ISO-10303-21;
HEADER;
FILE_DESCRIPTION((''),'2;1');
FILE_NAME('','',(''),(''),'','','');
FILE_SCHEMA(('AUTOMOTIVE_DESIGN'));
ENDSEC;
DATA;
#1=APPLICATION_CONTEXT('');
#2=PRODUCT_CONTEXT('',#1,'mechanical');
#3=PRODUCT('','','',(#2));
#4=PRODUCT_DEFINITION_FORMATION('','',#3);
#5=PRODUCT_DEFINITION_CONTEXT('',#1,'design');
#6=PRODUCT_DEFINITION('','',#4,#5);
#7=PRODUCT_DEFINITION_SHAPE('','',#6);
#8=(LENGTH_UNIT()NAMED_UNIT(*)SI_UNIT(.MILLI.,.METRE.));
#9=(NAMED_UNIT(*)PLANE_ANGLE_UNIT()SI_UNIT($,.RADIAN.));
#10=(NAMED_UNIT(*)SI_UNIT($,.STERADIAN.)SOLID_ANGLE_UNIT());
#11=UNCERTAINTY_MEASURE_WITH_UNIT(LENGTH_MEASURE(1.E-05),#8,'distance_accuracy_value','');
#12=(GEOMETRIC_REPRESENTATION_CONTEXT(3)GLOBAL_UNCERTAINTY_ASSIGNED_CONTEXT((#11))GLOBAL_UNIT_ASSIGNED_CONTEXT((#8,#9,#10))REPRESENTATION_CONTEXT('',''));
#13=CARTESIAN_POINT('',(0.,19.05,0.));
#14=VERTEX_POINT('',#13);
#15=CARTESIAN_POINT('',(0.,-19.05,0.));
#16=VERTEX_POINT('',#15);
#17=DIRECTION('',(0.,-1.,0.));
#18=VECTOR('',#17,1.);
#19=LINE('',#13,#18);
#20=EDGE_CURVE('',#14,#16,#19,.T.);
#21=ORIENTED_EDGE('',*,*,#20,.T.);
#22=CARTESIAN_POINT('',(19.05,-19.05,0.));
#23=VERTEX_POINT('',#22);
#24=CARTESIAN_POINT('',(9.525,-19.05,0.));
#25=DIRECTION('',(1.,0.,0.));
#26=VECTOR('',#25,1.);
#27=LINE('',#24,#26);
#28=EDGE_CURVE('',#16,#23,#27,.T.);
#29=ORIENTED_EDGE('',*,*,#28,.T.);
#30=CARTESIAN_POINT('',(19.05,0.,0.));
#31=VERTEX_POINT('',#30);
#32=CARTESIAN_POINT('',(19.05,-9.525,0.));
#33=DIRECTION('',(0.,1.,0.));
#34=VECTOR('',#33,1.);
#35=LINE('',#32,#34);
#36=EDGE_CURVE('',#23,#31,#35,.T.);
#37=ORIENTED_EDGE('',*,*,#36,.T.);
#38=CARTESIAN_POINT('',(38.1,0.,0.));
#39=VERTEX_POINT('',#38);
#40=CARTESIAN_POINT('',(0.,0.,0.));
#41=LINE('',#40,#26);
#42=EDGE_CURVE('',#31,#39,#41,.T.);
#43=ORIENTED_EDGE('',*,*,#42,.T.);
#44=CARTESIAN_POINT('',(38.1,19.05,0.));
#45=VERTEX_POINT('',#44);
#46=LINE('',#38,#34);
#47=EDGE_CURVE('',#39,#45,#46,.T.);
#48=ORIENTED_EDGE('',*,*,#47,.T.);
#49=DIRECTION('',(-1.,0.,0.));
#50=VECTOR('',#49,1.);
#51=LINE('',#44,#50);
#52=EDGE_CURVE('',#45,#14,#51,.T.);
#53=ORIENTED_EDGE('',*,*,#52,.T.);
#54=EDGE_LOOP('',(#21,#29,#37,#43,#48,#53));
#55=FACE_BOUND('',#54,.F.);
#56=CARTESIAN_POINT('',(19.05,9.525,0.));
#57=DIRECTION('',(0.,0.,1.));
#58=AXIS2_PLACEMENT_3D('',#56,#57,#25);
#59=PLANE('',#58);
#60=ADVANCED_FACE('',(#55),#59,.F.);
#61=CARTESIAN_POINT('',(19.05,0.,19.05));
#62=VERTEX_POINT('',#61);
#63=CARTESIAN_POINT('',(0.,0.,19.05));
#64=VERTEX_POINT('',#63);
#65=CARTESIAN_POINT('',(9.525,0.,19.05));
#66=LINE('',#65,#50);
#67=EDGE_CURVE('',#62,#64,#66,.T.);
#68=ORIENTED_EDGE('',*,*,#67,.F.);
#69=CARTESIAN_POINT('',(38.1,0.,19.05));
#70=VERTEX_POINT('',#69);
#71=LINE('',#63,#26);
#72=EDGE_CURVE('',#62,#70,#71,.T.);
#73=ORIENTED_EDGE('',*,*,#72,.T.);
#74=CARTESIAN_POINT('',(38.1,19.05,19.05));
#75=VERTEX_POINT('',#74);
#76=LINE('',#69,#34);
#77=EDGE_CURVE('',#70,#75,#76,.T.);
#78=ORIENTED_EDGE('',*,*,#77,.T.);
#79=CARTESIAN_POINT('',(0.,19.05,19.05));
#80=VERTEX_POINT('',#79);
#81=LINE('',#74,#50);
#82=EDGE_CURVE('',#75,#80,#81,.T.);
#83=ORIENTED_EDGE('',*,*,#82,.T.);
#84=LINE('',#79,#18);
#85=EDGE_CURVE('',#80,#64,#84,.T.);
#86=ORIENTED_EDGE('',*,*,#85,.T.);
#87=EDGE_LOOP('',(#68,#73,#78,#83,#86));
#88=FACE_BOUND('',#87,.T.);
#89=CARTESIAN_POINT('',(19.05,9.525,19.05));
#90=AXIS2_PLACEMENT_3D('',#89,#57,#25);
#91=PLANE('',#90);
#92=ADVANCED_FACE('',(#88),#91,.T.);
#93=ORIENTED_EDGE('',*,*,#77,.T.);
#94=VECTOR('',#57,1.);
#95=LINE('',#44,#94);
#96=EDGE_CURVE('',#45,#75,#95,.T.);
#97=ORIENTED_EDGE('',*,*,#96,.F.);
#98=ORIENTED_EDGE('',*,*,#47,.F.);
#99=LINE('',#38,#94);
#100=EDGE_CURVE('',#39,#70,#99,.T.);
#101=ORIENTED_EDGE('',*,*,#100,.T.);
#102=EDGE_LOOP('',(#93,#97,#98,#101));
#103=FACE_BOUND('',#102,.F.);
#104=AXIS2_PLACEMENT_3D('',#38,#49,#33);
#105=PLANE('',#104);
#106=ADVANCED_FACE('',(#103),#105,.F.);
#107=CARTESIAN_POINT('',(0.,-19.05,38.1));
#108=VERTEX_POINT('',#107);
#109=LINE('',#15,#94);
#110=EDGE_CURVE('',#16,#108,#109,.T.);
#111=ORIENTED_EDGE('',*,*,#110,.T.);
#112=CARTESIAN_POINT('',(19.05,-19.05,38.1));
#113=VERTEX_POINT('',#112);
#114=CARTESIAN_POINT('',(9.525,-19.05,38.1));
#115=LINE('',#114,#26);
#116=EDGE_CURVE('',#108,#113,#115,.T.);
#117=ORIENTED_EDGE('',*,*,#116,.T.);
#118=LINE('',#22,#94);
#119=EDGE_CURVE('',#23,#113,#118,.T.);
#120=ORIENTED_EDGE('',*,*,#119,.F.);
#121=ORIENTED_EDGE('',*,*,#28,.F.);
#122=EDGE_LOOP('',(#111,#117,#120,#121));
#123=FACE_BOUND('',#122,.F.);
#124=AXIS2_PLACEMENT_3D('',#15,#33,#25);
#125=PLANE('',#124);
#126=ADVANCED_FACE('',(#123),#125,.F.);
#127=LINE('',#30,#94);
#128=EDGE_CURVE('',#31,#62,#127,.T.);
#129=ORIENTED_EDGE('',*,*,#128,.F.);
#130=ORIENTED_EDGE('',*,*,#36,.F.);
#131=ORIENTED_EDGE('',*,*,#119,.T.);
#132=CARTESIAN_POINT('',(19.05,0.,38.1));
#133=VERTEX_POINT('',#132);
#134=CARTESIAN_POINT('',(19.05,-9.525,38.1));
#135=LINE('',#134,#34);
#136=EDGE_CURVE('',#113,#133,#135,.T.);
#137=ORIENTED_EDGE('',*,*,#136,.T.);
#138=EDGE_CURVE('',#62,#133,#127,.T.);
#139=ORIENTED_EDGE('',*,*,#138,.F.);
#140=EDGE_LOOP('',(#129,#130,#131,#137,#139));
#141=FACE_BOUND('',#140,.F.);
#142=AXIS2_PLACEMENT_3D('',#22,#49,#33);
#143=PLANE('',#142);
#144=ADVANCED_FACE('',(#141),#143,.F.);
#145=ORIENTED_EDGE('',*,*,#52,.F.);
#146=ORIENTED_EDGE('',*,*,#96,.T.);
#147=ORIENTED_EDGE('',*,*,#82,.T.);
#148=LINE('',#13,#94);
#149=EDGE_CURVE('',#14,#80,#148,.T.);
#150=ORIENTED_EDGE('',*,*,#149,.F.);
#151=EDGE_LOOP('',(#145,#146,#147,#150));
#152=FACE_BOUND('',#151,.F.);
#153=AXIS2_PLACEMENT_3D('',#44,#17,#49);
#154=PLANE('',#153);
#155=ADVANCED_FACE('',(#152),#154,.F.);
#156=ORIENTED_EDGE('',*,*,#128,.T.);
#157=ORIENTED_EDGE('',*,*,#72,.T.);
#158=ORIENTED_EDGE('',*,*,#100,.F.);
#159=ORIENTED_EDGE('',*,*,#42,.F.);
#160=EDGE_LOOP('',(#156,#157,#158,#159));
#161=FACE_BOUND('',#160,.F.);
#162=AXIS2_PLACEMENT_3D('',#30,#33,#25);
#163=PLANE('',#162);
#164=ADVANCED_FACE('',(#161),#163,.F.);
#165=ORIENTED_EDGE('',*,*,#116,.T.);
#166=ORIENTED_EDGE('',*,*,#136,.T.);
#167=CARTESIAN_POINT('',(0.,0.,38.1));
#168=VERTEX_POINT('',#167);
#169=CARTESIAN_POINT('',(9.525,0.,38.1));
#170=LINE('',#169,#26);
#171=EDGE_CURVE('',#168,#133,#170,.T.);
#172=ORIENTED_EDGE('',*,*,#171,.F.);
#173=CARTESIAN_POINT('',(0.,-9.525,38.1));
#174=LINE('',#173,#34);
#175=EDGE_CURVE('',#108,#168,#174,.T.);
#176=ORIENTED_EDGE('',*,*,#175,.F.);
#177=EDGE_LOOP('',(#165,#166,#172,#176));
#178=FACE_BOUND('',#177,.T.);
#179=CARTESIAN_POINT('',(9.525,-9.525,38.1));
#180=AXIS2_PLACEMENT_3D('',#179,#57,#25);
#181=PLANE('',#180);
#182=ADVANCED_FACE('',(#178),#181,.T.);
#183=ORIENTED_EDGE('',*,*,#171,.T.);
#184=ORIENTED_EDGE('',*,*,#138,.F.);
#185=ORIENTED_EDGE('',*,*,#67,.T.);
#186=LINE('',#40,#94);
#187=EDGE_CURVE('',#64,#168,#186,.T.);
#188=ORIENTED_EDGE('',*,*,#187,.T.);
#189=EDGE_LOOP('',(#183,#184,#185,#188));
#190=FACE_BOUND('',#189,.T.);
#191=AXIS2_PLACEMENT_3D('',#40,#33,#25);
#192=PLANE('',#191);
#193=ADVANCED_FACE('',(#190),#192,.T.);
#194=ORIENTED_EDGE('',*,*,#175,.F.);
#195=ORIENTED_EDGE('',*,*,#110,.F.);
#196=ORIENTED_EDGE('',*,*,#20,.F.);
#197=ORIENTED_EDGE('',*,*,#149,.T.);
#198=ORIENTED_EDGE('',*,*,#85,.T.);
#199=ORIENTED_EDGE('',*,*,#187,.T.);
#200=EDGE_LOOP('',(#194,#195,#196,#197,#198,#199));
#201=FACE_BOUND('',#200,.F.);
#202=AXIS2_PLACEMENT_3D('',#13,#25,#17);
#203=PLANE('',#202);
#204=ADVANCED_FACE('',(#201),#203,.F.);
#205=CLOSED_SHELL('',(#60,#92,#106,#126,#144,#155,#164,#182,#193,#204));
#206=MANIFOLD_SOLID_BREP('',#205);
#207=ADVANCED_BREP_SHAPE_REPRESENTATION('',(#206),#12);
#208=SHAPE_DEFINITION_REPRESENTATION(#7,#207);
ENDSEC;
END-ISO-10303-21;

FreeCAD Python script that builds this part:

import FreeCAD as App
import Part
import Sketcher

V = App.Vector
Q = App.Units.Quantity

doc = App.newDocument("Part")
body = doc.addObject("PartDesign::Body", "Body")

# Sketch on XY plane
sketch1 = doc.addObject("Sketcher::SketchObject", "Sketch")
body.addObject(sketch1)
sketch1.AttachmentSupport = (doc.XY_Plane, [""])
sketch1.MapMode = "FlatFace"
sketch1.addGeometry(Part.LineSegment(V(0, 19, 0), V(0, -19, 0)), False)
sketch1.addGeometry(Part.LineSegment(V(0, -19, 0), V(19, -19, 0)), False)
sketch1.addGeometry(Part.LineSegment(V(19, -19, 0), V(19, 0, 0)), False)
sketch1.addGeometry(Part.LineSegment(V(19, 0, 0), V(38, 0, 0)), False)
sketch1.addGeometry(Part.LineSegment(V(38, 0, 0), V(38, 19, 0)), False)
sketch1.addGeometry(Part.LineSegment(V(38, 19, 0), V(0, 19, 0)), False)
sketch1.addConstraint(Sketcher.Constraint("Coincident", 0, 2, 1, 1))
sketch1.addConstraint(Sketcher.Constraint("Coincident", 1, 2, 2, 1))
sketch1.addConstraint(Sketcher.Constraint("Coincident", 2, 2, 3, 1))
sketch1.addConstraint(Sketcher.Constraint("Coincident", 3, 2, 4, 1))
sketch1.addConstraint(Sketcher.Constraint("Coincident", 4, 2, 5, 1))
sketch1.addConstraint(Sketcher.Constraint("Coincident", 5, 2, 0, 1))
sketch1.addConstraint(Sketcher.Constraint("Vertical", 0))
sketch1.addConstraint(Sketcher.Constraint("Horizontal", 1))
sketch1.addConstraint(Sketcher.Constraint("Vertical", 2))
sketch1.addConstraint(Sketcher.Constraint("Horizontal", 3))
sketch1.addConstraint(Sketcher.Constraint("Vertical", 4))
sketch1.addConstraint(Sketcher.Constraint("Horizontal", 5))
sketch1.addConstraint(Sketcher.Constraint("Symmetric", 0, 2, 5, 2, -1, 1))
sketch1.addConstraint(Sketcher.Constraint("PointOnObject", 2, 2, -1))
sketch1.addConstraint(Sketcher.Constraint("Equal", 1, 3))
sketch1.addConstraint(Sketcher.Constraint("Equal", 5, 0))
sketch1.addConstraint(Sketcher.Constraint("DistanceX", 5, 2, 5, 1, Q("1.5 in")))
pad1 = doc.addObject("PartDesign::Pad", "Pad")
body.addObject(pad1)
pad1.Profile = sketch1
pad1.Length = Q("0.75 in")

# Sketch on XY plane
sketch2 = doc.addObject("Sketcher::SketchObject", "Sketch001")
body.addObject(sketch2)
sketch2.AttachmentSupport = (doc.XY_Plane, [""])
sketch2.MapMode = "FlatFace"
sketch2.addGeometry(Part.LineSegment(V(0, 0, 0), V(0, -19, 0)), False)
sketch2.addGeometry(Part.LineSegment(V(0, -19, 0), V(19, -19, 0)), False)
sketch2.addGeometry(Part.LineSegment(V(19, -19, 0), V(19, 0, 0)), False)
sketch2.addGeometry(Part.LineSegment(V(19, 0, 0), V(0, 0, 0)), False)
sketch2.addConstraint(Sketcher.Constraint("Coincident", 0, 2, 1, 1))
sketch2.addConstraint(Sketcher.Constraint("Coincident", 1, 2, 2, 1))
sketch2.addConstraint(Sketcher.Constraint("Coincident", 2, 2, 3, 1))
sketch2.addConstraint(Sketcher.Constraint("Coincident", 3, 2, 0, 1))
sketch2.addConstraint(Sketcher.Constraint("Vertical", 0))
sketch2.addConstraint(Sketcher.Constraint("Horizontal", 1))
sketch2.addConstraint(Sketcher.Constraint("Vertical", 2))
sketch2.addConstraint(Sketcher.Constraint("Horizontal", 3))
sketch2.addConstraint(Sketcher.Constraint("Coincident", 3, 2, -1, 1))
sketch2.addConstraint(Sketcher.Constraint("Equal", 3, 0))
sketch2.addConstraint(Sketcher.Constraint("DistanceX", 1, 1, 1, 2, Q("0.75 in")))
pad2 = doc.addObject("PartDesign::Pad", "Pad001")
body.addObject(pad2)
pad2.Profile = sketch2
pad2.Length = Q("1.5 in")

doc.recompute()
